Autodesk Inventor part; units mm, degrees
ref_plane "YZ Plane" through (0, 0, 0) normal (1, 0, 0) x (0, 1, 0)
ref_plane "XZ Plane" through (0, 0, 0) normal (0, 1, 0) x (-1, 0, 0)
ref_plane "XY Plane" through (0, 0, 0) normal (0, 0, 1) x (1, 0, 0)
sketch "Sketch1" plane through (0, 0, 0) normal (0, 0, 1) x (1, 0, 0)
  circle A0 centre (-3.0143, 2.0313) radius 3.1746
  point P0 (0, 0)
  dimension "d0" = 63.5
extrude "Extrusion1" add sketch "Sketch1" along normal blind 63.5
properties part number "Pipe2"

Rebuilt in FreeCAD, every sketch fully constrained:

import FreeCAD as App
import Part
import Sketcher

V = App.Vector
Q = App.Units.Quantity

doc = App.newDocument("Part")
body = doc.addObject("PartDesign::Body", "Body")

sketch1 = body.newObject("Sketcher::SketchObject", "Sketch")
sketch1.AttachmentSupport = (doc.getObject("XY_Plane"), [""])
sketch1.MapMode = "FlatFace"
sketch1.addGeometry(Part.Circle(V(-3.0143, 2.0313, 0), V(0, 0, 1), 3.1746), False)
sketch1.addConstraint([
    Sketcher.Constraint("Diameter", 0, Q("6.3492 mm")),
    Sketcher.Constraint("DistanceX", 0, 3, -1, 1, Q("3.0143 mm")),
    Sketcher.Constraint("DistanceY", -1, 1, 0, 3, Q("2.0313 mm")),
])
pad1 = body.newObject("PartDesign::Pad", "Pad")
pad1.Profile = sketch1
pad1.Length = Q("2.5 in")

doc.recompute()
